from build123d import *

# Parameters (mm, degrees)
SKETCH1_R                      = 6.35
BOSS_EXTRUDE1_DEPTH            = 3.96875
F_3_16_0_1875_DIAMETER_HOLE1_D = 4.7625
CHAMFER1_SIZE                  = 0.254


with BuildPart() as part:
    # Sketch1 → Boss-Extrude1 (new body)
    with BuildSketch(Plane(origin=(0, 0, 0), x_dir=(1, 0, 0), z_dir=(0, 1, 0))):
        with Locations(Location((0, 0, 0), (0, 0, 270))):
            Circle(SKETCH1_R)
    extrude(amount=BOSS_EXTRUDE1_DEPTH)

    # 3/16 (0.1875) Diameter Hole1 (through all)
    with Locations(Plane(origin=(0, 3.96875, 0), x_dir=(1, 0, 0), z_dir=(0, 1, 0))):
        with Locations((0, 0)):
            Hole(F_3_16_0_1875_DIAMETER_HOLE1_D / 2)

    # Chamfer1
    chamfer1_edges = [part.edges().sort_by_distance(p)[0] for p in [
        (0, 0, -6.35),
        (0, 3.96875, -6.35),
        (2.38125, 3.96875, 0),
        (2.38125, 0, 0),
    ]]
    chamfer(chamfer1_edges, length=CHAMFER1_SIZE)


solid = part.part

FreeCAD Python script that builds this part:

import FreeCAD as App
import Part
import Sketcher
from FreeCAD import Vector
Q = App.Units.Quantity


def edges_at(feature, points):
    """Names of the edges that pass closest to the given points."""
    edges = feature.Shape.Edges
    near = lambda p: min(range(len(edges)), key=lambda i: edges[i].distToShape(Part.Vertex(*p))[0])
    return sorted({f"Edge{near(p) + 1}" for p in points})

doc = App.newDocument("Part")
params = doc.addObject("Spreadsheet::Sheet", "Params")
for row, (alias, value) in enumerate([
    ("sketch1_diameter", "0.5 in"),
    ("pad1_length", "0.15625 in"),
    ("sketch2_diameter", "0.1875 in"),
    ("hole_diameter", "0.1875 in"),
    ("chamfer_size", "0.01 in"),
], start=1):
    params.set(f"A{row}", alias)
    params.set(f"B{row}", "=" + value)
    params.setAlias(f"B{row}", alias)

body = doc.addObject("PartDesign::Body", "Body")

# Sketch on XZ plane
sketch1 = doc.addObject("Sketcher::SketchObject", "Sketch")
body.addObject(sketch1)
sketch1.AttachmentSupport = (doc.XZ_Plane, [""])
sketch1.MapMode = "FlatFace"
sketch1.addGeometry(Part.Circle(Vector(0, 0, 0), Vector(0, 0, 1), 6), False)
sketch1.addConstraint([
    Sketcher.Constraint("Coincident", 0, 3, -1, 1),
    Sketcher.Constraint("Diameter", 0, Q("0.5 in")),
])
sketch1.setExpression("Constraints[1]", "Params.sketch1_diameter")
pad1 = doc.addObject("PartDesign::Pad", "Pad")
body.addObject(pad1)
pad1.Profile = sketch1
pad1.setExpression("Length", "Params.pad1_length")
pad1.Reversed = True

# Sketch on XZ plane
sketch2 = doc.addObject("Sketcher::SketchObject", "Sketch001")
body.addObject(sketch2)
sketch2.AttachmentSupport = (doc.XZ_Plane, [""])
sketch2.MapMode = "FlatFace"
sketch2.AttachmentOffset = App.Placement(Vector(0, 0, -0.15625 * 25.4), App.Rotation())
sketch2.addGeometry(Part.Circle(Vector(0, 0, 0), Vector(0, 0, 1), 2.4), False)
sketch2.addConstraint([
    Sketcher.Constraint("Coincident", 0, 3, -1, 1),
    Sketcher.Constraint("Diameter", 0, Q("0.1875 in")),
])
sketch2.setExpression("Constraints[1]", "Params.sketch2_diameter")
doc.recompute()
hole = doc.addObject("PartDesign::Hole", "Hole")
body.addObject(hole)
hole.Profile = sketch2
hole.ThreadType = "None"
hole.setExpression("Diameter", "Params.hole_diameter")
hole.DepthType = "ThroughAll"
hole.Reversed = True
doc.recompute()

chamfer = doc.addObject("PartDesign::Chamfer", "Chamfer")
body.addObject(chamfer)
chamfer.Base = (hole, edges_at(hole, [
    (0, 0, -6.35),
    (0, 3.969, -6.35),
    (2.381, 3.969, 0),
    (2.381, 0, 0),
]))
chamfer.setExpression("Size", "Params.chamfer_size")

doc.recompute()
